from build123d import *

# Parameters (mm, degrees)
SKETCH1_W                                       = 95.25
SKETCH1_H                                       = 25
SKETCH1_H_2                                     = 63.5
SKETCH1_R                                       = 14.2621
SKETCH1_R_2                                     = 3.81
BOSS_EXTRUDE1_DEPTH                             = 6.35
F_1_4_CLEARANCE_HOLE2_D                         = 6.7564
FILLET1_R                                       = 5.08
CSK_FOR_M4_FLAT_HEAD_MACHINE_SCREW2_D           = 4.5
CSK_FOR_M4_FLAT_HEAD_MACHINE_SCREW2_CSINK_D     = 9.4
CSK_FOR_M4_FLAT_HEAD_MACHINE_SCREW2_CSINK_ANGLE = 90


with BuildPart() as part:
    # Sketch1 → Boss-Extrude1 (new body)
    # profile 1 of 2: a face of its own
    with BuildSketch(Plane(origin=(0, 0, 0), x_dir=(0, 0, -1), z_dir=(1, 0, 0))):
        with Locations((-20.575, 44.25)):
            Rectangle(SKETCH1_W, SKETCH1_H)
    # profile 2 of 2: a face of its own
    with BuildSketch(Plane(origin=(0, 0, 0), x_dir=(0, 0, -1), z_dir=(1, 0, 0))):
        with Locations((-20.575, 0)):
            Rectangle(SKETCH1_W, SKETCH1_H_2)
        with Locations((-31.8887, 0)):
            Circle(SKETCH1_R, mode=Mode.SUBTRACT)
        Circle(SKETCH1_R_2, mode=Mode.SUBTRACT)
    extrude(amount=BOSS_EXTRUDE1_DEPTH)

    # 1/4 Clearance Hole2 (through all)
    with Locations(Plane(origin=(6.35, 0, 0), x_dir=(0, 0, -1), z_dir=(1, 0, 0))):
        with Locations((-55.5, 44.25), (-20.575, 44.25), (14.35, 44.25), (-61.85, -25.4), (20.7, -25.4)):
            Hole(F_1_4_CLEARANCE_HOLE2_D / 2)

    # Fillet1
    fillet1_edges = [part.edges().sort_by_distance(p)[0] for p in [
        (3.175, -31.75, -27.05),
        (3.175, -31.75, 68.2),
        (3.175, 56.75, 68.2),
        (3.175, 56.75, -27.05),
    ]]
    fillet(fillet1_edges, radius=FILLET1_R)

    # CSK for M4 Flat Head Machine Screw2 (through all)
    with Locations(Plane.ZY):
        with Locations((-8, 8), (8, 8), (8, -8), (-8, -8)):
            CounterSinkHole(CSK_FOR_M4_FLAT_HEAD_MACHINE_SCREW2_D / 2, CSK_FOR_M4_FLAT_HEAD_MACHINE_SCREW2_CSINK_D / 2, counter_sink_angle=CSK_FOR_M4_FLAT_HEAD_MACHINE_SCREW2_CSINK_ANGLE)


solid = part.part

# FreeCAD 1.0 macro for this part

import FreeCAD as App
import Part
import Sketcher
Q = App.Units.Quantity


def edges_at(feature, points):
    """Names of the edges that pass closest to the given points."""
    edges = feature.Shape.Edges
    near = lambda p: min(range(len(edges)), key=lambda i: edges[i].distToShape(Part.Vertex(*p))[0])
    return sorted({f"Edge{near(p) + 1}" for p in points})

doc = App.newDocument("Part")
body = doc.addObject("PartDesign::Body", "Body")

# Sketch on YZ plane
sketch1 = body.newObject("Sketcher::SketchObject", "Sketch")
sketch1.AttachmentSupport = (doc.getObject("YZ_Plane"), [""])
sketch1.MapMode = "FlatFace"
sketch1.addGeometry([
    Part.LineSegment(App.Vector(56.8, 68.2, 0), App.Vector(-31.8, 68.2, 0)),  # 0
    Part.LineSegment(App.Vector(-31.8, 68.2, 0), App.Vector(-31.8, -27.1, 0)),  # 1
    Part.LineSegment(App.Vector(-31.8, -27.1, 0), App.Vector(56.8, -27.1, 0)),  # 2
    Part.LineSegment(App.Vector(56.8, -27.1, 0), App.Vector(56.8, 68.2, 0)),  # 3
    Part.Circle(App.Vector(0, 0, 0), App.Vector(0, 0, 1), 3.8),  # 4
    Part.Circle(App.Vector(0, 31.9, 0), App.Vector(0, 0, 1), 14.3),  # 5
], False)
sketch1.addConstraint([
    Sketcher.Constraint("Coincident", 0, 2, 1, 1),
    Sketcher.Constraint("Coincident", 1, 2, 2, 1),
    Sketcher.Constraint("Coincident", 2, 2, 3, 1),
    Sketcher.Constraint("Coincident", 3, 2, 0, 1),
    Sketcher.Constraint("Horizontal", 0),
    Sketcher.Constraint("Vertical", 1),
    Sketcher.Constraint("Horizontal", 2),
    Sketcher.Constraint("Vertical", 3),
    Sketcher.Constraint("Coincident", 4, 3, -1, 1),
    Sketcher.Constraint("PointOnObject", 5, 3, -2),
    Sketcher.Constraint("Diameter", 4, Q("0.3 in")),
    Sketcher.Constraint("Diameter", 5, Q("1.123 in")),
    Sketcher.Constraint("DistanceY", 1, 2, 1, 1, Q("3.75 in")),
    Sketcher.Constraint("DistanceX", 0, 2, -1, 1, Q("1.25 in")),
    Sketcher.Constraint("DistanceX", 0, 2, 0, 1, 88.5),
    Sketcher.Constraint("DistanceY", -1, 1, 5, 3, 31.8887),
    Sketcher.Constraint("DistanceY", -1, 1, 0, 2, 68.2),
])
pad1 = body.newObject("PartDesign::Pad", "Pad")
pad1.Profile = sketch1
pad1.Length = Q("0.25 in")

# Sketch on YZ plane
sketch2 = body.newObject("Sketcher::SketchObject", "Sketch001")
sketch2.AttachmentSupport = (doc.getObject("YZ_Plane"), [""])
sketch2.MapMode = "FlatFace"
sketch2.AttachmentOffset = App.Placement(App.Vector(0, 0, 0.25 * 25.4), App.Rotation())
sketch2.addGeometry([
    Part.Circle(App.Vector(44.2, 55.5, 0), App.Vector(0, 0, 1), 3.4),  # 0
    Part.Circle(App.Vector(44.2, 20.6, 0), App.Vector(0, 0, 1), 3.4),  # 1
    Part.Circle(App.Vector(44.2, -14.3, 0), App.Vector(0, 0, 1), 3.4),  # 2
    Part.Circle(App.Vector(-25.4, 61.9, 0), App.Vector(0, 0, 1), 3.4),  # 3
    Part.Circle(App.Vector(-25.4, -20.7, 0), App.Vector(0, 0, 1), 3.4),  # 4
], False)
sketch2.addConstraint([
    Sketcher.Constraint("Equal", 0, 1),
    Sketcher.Constraint("Equal", 1, 2),
    Sketcher.Constraint("Equal", 2, 3),
    Sketcher.Constraint("Equal", 3, 4),
    Sketcher.Constraint("Vertical", 0, 3, 1, 3),
    Sketcher.Constraint("Vertical", 1, 3, 2, 3),
    Sketcher.Constraint("Vertical", 3, 3, 4, 3),
    Sketcher.Constraint("Diameter", 0, Q("0.266 in")),
    Sketcher.Constraint("DistanceX", 3, 3, -1, 1, Q("1 in")),
    Sketcher.Constraint("DistanceY", 2, 3, 3, 3, Q("3 in")),
    Sketcher.Constraint("DistanceY", 4, 3, 0, 3, Q("3 in")),
    Sketcher.Constraint("DistanceY", 2, 3, 0, 3, Q("2.75 in")),
    Sketcher.Constraint("DistanceY", 1, 3, 0, 3, Q("1.375 in")),
    Sketcher.Constraint("DistanceX", -1, 1, 0, 3, 44.25),
    Sketcher.Constraint("DistanceY", -1, 1, 0, 3, 55.5),
])
doc.recompute()
hole = body.newObject("PartDesign::Hole", "Hole")
hole.Profile = sketch2
hole.ThreadType = "None"
hole.Diameter = Q("0.266 in")
hole.DepthType = "ThroughAll"
doc.recompute()

fillet = body.newObject("PartDesign::Fillet", "Fillet")
fillet.Base = (hole, edges_at(hole, [
    (3.175, -31.75, -27.05),
    (3.175, -31.75, 68.2),
    (3.175, 56.75, 68.2),
    (3.175, 56.75, -27.05),
]))
fillet.Radius = Q("0.2 in")

# Sketch on YZ plane
sketch3 = body.newObject("Sketcher::SketchObject", "Sketch002")
sketch3.AttachmentSupport = (doc.getObject("YZ_Plane"), [""])
sketch3.MapMode = "FlatFace"
sketch3.addGeometry([
    Part.Circle(App.Vector(8, -8, 0), App.Vector(0, 0, 1), 2.2),
    Part.Circle(App.Vector(8, 8, 0), App.Vector(0, 0, 1), 2.2),
    Part.Circle(App.Vector(-8, 8, 0), App.Vector(0, 0, 1), 2.2),
    Part.Circle(App.Vector(-8, -8, 0), App.Vector(0, 0, 1), 2.2),
], False)
sketch3.addConstraint([
    Sketcher.Constraint("Equal", 0, 1),
    Sketcher.Constraint("Equal", 1, 2),
    Sketcher.Constraint("Equal", 2, 3),
    Sketcher.Constraint("Symmetric", 0, 3, 2, 3, -1, 1),
    Sketcher.Constraint("Symmetric", 1, 3, 3, 3, -1, 1),
    Sketcher.Constraint("Symmetric", 1, 3, 2, 3, -2),
    Sketcher.Constraint("Diameter", 0, 4.5),
    Sketcher.Constraint("DistanceX", -1, 1, 0, 3, 8.0),
    Sketcher.Constraint("DistanceY", 0, 3, -1, 1, 8.0),
])
doc.recompute()
hole2 = body.newObject("PartDesign::Hole", "Hole001")
hole2.Profile = sketch3
hole2.ThreadType = "None"
hole2.Diameter = 4.5
hole2.DepthType = "ThroughAll"
hole2.HoleCutType = "Countersink"
hole2.HoleCutDiameter = 9.4
hole2.HoleCutCountersinkAngle = 90
hole2.Reversed = True

doc.recompute()
